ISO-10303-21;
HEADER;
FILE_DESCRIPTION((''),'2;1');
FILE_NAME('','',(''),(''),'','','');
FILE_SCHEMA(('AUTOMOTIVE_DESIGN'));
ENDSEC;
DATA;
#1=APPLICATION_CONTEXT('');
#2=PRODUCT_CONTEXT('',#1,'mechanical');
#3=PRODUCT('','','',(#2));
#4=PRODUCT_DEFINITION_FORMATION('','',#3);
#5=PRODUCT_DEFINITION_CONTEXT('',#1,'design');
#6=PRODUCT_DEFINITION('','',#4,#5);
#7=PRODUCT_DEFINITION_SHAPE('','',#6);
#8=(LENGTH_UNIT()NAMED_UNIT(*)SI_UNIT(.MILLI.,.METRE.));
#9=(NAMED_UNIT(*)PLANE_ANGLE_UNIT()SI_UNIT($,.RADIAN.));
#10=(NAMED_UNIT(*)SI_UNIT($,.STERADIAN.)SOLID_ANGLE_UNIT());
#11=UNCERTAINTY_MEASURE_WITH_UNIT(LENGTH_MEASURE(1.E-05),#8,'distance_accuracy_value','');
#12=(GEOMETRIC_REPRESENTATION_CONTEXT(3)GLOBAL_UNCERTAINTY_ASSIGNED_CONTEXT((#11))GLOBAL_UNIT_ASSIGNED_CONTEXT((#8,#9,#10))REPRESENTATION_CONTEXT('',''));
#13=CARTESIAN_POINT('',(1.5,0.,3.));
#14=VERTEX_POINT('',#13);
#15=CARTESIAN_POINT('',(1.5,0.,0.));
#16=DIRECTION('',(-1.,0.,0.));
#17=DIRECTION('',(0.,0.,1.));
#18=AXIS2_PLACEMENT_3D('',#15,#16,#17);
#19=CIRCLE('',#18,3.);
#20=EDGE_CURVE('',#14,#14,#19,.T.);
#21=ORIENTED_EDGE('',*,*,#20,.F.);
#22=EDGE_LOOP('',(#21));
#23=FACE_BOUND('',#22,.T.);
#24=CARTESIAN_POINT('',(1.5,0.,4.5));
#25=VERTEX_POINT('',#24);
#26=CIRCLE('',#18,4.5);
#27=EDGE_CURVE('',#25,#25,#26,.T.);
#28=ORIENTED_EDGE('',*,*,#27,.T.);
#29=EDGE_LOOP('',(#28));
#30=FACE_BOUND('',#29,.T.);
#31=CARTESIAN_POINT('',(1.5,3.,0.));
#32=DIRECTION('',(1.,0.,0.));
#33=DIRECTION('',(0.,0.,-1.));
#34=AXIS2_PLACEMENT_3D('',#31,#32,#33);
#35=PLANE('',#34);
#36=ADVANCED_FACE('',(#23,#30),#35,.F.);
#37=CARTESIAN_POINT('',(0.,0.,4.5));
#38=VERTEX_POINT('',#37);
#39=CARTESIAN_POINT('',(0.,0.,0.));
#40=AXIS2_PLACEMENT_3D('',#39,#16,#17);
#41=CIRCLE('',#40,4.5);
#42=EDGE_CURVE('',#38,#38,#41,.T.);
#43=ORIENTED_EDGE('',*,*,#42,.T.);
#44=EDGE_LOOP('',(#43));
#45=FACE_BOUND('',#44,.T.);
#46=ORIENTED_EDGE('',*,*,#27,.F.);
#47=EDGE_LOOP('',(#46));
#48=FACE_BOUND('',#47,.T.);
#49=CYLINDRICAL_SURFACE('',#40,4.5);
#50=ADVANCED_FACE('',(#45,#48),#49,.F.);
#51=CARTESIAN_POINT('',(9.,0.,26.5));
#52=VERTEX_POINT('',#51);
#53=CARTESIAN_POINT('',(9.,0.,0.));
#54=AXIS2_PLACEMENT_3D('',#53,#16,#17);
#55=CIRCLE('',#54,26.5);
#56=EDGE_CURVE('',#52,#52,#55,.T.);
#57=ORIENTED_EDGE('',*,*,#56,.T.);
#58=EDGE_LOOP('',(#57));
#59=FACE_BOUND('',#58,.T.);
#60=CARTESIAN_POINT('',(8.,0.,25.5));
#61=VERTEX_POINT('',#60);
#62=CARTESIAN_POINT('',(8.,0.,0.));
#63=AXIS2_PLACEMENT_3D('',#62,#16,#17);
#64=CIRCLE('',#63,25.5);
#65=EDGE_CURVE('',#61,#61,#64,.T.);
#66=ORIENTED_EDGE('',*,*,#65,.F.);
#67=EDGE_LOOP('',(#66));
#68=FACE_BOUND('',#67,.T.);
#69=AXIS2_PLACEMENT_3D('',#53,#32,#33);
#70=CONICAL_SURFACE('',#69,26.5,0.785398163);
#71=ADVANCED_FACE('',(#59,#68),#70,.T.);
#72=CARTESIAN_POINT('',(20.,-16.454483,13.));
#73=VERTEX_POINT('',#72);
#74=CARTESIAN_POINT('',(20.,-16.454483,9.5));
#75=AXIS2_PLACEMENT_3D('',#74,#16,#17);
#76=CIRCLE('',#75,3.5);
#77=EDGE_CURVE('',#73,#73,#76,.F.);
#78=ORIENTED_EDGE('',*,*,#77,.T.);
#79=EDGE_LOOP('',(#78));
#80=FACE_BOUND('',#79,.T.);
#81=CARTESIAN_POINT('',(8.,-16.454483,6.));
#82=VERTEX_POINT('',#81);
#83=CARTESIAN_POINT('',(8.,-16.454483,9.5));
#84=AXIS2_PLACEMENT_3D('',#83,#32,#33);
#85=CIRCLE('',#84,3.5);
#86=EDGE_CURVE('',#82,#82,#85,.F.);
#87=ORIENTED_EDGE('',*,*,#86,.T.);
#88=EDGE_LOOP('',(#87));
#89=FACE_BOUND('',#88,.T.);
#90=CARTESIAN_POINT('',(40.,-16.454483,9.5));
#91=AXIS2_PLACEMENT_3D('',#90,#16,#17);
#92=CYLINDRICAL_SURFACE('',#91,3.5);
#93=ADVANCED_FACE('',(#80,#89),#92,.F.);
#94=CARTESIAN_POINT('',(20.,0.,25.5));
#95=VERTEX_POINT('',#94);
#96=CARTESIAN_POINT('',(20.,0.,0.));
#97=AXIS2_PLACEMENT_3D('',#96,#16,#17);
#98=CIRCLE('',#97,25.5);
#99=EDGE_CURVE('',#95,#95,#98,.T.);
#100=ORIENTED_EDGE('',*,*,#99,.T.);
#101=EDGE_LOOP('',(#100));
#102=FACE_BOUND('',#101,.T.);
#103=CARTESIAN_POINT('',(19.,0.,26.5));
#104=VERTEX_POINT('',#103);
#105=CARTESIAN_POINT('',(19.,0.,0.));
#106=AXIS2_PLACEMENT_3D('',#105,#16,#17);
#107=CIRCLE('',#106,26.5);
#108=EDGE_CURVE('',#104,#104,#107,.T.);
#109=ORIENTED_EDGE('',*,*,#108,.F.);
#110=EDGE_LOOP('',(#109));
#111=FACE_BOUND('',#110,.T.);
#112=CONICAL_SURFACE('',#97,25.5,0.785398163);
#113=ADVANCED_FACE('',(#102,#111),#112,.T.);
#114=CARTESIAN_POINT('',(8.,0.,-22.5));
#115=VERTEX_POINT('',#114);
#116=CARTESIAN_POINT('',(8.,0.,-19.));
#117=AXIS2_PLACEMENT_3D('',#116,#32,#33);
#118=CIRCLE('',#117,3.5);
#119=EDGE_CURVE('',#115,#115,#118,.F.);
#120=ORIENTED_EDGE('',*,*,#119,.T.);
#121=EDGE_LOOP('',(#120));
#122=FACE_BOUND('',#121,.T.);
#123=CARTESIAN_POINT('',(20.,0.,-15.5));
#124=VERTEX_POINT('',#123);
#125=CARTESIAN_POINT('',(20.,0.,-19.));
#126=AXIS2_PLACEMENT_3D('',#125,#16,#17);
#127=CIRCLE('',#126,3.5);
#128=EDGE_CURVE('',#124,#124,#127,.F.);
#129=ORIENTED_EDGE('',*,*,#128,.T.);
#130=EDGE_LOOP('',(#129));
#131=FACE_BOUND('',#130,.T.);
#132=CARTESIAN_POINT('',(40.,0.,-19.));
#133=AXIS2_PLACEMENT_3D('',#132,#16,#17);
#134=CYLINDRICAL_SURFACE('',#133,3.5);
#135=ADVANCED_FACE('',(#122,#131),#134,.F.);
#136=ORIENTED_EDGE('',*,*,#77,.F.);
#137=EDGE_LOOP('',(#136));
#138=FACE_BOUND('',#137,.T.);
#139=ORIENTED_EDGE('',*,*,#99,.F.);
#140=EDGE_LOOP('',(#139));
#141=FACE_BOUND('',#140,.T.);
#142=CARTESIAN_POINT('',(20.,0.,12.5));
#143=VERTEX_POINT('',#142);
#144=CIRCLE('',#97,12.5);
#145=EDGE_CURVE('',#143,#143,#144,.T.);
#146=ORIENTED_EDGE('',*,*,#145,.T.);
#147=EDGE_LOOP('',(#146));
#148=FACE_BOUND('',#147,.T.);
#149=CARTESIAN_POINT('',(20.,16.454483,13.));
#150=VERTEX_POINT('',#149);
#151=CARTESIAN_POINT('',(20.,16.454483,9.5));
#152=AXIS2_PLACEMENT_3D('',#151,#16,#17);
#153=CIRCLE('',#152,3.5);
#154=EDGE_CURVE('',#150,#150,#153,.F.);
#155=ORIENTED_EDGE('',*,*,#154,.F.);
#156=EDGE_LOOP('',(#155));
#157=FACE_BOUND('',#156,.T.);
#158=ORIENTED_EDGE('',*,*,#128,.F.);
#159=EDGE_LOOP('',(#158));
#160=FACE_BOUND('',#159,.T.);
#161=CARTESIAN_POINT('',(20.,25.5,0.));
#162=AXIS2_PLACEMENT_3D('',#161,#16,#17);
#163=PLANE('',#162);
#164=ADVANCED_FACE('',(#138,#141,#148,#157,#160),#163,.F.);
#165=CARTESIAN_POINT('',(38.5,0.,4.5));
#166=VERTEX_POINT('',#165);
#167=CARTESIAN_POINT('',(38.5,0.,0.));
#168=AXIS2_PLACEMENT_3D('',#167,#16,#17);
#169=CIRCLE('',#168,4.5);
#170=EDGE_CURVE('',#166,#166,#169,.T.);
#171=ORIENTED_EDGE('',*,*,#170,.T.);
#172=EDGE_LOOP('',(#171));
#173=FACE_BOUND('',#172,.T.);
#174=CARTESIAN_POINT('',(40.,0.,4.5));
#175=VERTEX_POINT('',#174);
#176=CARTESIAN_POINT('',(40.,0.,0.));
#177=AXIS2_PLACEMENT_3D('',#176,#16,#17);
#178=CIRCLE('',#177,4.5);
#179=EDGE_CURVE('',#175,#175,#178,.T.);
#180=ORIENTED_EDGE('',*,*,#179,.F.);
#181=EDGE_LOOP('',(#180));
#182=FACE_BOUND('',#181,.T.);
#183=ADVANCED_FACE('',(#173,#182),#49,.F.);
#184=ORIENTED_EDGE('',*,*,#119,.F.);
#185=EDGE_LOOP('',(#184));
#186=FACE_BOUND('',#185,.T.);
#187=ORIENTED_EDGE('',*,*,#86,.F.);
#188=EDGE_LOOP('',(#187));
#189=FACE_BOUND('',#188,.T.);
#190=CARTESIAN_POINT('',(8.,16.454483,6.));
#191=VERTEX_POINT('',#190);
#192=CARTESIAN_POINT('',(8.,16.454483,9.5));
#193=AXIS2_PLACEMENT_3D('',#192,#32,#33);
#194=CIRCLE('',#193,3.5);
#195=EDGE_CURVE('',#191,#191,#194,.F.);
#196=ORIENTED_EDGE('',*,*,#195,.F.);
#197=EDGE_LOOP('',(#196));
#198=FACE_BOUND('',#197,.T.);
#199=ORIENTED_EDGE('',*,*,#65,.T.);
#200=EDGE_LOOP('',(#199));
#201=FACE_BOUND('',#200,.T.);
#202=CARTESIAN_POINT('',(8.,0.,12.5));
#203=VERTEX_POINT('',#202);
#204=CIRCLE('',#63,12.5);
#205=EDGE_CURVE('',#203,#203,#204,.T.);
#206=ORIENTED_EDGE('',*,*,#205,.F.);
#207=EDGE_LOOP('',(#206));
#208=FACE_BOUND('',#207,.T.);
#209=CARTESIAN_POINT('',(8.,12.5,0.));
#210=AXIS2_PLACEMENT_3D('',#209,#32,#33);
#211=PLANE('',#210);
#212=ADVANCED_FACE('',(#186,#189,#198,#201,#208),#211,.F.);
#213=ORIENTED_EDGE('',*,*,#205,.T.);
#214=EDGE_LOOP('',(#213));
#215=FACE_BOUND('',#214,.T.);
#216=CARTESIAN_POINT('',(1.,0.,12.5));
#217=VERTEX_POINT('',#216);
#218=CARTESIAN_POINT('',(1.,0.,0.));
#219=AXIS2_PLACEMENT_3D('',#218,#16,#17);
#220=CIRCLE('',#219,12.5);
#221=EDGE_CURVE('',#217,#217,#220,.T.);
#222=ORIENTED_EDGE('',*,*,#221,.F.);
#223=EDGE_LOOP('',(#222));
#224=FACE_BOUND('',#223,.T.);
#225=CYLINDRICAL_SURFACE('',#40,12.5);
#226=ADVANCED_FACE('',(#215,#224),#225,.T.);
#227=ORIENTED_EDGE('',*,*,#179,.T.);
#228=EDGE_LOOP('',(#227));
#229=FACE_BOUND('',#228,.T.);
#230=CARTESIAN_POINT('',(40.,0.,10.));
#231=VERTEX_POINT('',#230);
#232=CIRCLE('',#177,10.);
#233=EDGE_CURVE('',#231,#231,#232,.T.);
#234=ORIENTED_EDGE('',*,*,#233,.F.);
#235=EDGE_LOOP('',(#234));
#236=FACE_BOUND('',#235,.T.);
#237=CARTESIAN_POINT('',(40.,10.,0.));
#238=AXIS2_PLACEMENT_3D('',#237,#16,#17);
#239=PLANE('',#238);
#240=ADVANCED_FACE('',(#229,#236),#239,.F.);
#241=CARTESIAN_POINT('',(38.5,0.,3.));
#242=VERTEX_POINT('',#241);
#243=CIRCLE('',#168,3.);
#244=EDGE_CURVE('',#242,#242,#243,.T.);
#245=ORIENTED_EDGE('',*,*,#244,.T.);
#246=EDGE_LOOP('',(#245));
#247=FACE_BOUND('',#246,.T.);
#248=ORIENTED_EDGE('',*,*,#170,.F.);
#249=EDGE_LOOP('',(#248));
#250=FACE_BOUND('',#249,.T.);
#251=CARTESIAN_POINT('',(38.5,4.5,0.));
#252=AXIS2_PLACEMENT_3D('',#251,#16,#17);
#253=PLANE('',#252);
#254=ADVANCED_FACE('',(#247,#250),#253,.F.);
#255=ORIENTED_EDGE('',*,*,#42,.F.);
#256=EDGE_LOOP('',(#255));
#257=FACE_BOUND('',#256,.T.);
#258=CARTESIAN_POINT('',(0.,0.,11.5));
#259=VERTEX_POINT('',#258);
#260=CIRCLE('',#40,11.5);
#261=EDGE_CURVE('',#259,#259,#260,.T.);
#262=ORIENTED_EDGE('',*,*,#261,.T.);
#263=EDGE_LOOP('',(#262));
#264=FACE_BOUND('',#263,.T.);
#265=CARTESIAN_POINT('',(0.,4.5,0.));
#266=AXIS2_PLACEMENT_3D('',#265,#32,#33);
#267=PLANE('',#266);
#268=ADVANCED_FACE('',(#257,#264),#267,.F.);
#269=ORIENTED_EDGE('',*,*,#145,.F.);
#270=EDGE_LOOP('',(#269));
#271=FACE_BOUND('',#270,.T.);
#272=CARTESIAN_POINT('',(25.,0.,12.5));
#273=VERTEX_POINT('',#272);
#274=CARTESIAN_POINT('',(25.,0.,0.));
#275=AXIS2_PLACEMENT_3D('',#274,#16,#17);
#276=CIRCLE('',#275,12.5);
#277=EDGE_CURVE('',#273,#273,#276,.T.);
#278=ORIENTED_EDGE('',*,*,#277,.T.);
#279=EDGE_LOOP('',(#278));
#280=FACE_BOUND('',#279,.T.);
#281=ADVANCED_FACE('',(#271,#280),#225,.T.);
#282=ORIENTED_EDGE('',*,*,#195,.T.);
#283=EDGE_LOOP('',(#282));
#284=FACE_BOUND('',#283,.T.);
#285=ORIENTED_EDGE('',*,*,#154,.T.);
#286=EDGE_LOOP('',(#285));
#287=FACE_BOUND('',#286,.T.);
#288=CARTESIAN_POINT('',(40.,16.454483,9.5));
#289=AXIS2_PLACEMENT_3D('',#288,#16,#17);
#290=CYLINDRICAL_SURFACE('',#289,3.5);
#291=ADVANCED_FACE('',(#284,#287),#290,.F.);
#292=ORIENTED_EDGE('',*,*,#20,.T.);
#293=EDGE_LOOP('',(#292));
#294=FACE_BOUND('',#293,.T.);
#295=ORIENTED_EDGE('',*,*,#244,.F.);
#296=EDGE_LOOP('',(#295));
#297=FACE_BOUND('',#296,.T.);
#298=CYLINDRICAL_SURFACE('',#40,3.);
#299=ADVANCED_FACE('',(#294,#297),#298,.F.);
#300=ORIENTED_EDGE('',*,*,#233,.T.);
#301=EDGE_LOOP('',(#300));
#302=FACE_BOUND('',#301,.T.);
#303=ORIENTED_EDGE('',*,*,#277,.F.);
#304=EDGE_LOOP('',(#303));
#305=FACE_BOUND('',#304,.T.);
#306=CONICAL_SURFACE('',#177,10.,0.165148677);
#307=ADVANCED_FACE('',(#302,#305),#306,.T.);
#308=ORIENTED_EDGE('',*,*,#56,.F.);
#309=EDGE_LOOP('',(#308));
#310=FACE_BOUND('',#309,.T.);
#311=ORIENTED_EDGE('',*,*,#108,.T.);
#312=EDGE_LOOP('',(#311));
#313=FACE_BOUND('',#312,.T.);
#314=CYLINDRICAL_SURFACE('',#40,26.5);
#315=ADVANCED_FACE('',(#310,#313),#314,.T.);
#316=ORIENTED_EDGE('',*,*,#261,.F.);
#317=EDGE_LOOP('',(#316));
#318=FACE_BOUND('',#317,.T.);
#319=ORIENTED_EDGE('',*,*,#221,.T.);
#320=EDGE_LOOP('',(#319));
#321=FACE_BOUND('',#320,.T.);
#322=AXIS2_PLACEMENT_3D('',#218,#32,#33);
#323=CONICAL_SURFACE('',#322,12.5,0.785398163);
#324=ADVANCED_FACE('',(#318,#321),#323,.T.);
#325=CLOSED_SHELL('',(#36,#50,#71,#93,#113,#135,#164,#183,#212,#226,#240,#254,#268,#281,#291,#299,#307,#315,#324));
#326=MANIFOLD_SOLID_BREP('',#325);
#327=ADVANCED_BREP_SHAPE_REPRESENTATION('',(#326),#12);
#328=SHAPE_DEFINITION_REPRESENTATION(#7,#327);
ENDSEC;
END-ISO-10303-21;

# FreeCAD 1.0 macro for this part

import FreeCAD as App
import Part
import Sketcher


def add_polygon(sketch, points):
    """Adds a closed chain of lines whose ends are joined by coincident constraints."""
    first, n = sketch.GeometryCount, len(points)
    for a, b in zip(points, points[1:] + points[:1]):
        sketch.addGeometry(Part.LineSegment(App.Vector(*a, 0), App.Vector(*b, 0)), False)
    for i in range(n):
        sketch.addConstraint(Sketcher.Constraint("Coincident", first + i, 2, first + (i + 1) % n, 1))

doc = App.newDocument("Part")
body = doc.addObject("PartDesign::Body", "Body")

# Sketch on XY plane
sketch1 = body.newObject("Sketcher::SketchObject", "Sketch")
sketch1.AttachmentSupport = (doc.getObject("XY_Plane"), [""])
sketch1.MapMode = "FlatFace"
add_polygon(sketch1, [(1, 12.5), (0, 11.5), (0, 4.5), (1.5, 4.5), (1.5, 3), (38.5, 3), (38.5, 4.5), (40, 4.5), (40, 10), (25, 12.5), (20, 12.5), (20, 25.5), (19, 26.5), (9, 26.5), (8, 25.5), (8, 12.5)])  # lines 0-15
sketch1.addConstraint([
    Sketcher.Constraint("Vertical", 1),
    Sketcher.Constraint("Horizontal", 2),
    Sketcher.Constraint("Vertical", 3),
    Sketcher.Constraint("Horizontal", 4),
    Sketcher.Constraint("Vertical", 5),
    Sketcher.Constraint("Horizontal", 6),
    Sketcher.Constraint("Vertical", 7),
    Sketcher.Constraint("Horizontal", 9),
    Sketcher.Constraint("Vertical", 10),
    Sketcher.Constraint("Horizontal", 12),
    Sketcher.Constraint("Vertical", 14),
    Sketcher.Constraint("Horizontal", 15),
    Sketcher.Constraint("PointOnObject", 0, 2, -2),
    Sketcher.Constraint("Perpendicular", 0, 11),
    Sketcher.Constraint("Perpendicular", 11, 13),
    Sketcher.Constraint("Horizontal", 2, 2, 5, 2),
    Sketcher.Constraint("Horizontal", 10, 2, 13, 2),
    Sketcher.Constraint("Horizontal", 9, 2, 14, 2),
    Sketcher.Constraint("Equal", 2, 6),
    Sketcher.Constraint("Equal", 15, 1),
    Sketcher.Constraint("Equal", 6, 3),
    Sketcher.Constraint("Equal", 0, 11),
    Sketcher.Constraint("Equal", 11, 13),
    Sketcher.Constraint("DistanceX", 4, 1, 4, 2, 37.0),
    Sketcher.Constraint("DistanceX", 9, 2, 9, 1, 5.0),
    Sketcher.Constraint("DistanceX", 12, 2, 12, 1, 10.0),
    Sketcher.Constraint("DistanceX", 15, 2, 15, 1, 7.0),
    Sketcher.Constraint("DistanceY", 10, 1, 10, 2, 13.0),
    Sketcher.Constraint("DistanceX", 2, 1, 2, 2, 1.5),
    Sketcher.Constraint("DistanceY", 7, 1, 7, 2, 5.5),
    Sketcher.Constraint("DistanceY", -1, 1, 3, 2, 3.0),
    Sketcher.Constraint("DistanceX", -1, 1, 8, 2, 25.0),
])
revolution = body.newObject("PartDesign::Revolution", "Revolution")
revolution.Profile = sketch1
revolution.ReferenceAxis = (sketch1, ["H_Axis"])
revolution.Angle = 360

# Sketch on YZ plane
sketch2 = body.newObject("Sketcher::SketchObject", "Sketch001")
sketch2.AttachmentSupport = (doc.getObject("YZ_Plane"), [""])
sketch2.MapMode = "FlatFace"
sketch2.addGeometry([
    Part.Circle(App.Vector(0, -19, 0), App.Vector(0, 0, 1), 3.5),
    Part.Circle(App.Vector(16.5, 9.5, 0), App.Vector(0, 0, 1), 3.5),
    Part.Circle(App.Vector(-16.5, 9.5, 0), App.Vector(0, 0, 1), 3.5),
], False)
sketch2.addConstraint([
    Sketcher.Constraint("Equal", 0, 1),
    Sketcher.Constraint("Equal", 1, 2),
    Sketcher.Constraint("Symmetric", 1, 3, 2, 3, -2),
    Sketcher.Constraint("PointOnObject", 0, 3, -2),
    Sketcher.Constraint("Diameter", 0, 7.0),
    Sketcher.Constraint("DistanceY", 0, 3, -1, 1, 19.0),
    Sketcher.Constraint("DistanceY", -1, 1, 1, 3, 9.5),
    Sketcher.Constraint("DistanceX", -1, 1, 1, 3, 16.454483),
])
pocket1 = body.newObject("PartDesign::Pocket", "Pocket")
pocket1.Profile = sketch2
pocket1.Type = "ThroughAll"
pocket1.Reversed = True

doc.recompute()
